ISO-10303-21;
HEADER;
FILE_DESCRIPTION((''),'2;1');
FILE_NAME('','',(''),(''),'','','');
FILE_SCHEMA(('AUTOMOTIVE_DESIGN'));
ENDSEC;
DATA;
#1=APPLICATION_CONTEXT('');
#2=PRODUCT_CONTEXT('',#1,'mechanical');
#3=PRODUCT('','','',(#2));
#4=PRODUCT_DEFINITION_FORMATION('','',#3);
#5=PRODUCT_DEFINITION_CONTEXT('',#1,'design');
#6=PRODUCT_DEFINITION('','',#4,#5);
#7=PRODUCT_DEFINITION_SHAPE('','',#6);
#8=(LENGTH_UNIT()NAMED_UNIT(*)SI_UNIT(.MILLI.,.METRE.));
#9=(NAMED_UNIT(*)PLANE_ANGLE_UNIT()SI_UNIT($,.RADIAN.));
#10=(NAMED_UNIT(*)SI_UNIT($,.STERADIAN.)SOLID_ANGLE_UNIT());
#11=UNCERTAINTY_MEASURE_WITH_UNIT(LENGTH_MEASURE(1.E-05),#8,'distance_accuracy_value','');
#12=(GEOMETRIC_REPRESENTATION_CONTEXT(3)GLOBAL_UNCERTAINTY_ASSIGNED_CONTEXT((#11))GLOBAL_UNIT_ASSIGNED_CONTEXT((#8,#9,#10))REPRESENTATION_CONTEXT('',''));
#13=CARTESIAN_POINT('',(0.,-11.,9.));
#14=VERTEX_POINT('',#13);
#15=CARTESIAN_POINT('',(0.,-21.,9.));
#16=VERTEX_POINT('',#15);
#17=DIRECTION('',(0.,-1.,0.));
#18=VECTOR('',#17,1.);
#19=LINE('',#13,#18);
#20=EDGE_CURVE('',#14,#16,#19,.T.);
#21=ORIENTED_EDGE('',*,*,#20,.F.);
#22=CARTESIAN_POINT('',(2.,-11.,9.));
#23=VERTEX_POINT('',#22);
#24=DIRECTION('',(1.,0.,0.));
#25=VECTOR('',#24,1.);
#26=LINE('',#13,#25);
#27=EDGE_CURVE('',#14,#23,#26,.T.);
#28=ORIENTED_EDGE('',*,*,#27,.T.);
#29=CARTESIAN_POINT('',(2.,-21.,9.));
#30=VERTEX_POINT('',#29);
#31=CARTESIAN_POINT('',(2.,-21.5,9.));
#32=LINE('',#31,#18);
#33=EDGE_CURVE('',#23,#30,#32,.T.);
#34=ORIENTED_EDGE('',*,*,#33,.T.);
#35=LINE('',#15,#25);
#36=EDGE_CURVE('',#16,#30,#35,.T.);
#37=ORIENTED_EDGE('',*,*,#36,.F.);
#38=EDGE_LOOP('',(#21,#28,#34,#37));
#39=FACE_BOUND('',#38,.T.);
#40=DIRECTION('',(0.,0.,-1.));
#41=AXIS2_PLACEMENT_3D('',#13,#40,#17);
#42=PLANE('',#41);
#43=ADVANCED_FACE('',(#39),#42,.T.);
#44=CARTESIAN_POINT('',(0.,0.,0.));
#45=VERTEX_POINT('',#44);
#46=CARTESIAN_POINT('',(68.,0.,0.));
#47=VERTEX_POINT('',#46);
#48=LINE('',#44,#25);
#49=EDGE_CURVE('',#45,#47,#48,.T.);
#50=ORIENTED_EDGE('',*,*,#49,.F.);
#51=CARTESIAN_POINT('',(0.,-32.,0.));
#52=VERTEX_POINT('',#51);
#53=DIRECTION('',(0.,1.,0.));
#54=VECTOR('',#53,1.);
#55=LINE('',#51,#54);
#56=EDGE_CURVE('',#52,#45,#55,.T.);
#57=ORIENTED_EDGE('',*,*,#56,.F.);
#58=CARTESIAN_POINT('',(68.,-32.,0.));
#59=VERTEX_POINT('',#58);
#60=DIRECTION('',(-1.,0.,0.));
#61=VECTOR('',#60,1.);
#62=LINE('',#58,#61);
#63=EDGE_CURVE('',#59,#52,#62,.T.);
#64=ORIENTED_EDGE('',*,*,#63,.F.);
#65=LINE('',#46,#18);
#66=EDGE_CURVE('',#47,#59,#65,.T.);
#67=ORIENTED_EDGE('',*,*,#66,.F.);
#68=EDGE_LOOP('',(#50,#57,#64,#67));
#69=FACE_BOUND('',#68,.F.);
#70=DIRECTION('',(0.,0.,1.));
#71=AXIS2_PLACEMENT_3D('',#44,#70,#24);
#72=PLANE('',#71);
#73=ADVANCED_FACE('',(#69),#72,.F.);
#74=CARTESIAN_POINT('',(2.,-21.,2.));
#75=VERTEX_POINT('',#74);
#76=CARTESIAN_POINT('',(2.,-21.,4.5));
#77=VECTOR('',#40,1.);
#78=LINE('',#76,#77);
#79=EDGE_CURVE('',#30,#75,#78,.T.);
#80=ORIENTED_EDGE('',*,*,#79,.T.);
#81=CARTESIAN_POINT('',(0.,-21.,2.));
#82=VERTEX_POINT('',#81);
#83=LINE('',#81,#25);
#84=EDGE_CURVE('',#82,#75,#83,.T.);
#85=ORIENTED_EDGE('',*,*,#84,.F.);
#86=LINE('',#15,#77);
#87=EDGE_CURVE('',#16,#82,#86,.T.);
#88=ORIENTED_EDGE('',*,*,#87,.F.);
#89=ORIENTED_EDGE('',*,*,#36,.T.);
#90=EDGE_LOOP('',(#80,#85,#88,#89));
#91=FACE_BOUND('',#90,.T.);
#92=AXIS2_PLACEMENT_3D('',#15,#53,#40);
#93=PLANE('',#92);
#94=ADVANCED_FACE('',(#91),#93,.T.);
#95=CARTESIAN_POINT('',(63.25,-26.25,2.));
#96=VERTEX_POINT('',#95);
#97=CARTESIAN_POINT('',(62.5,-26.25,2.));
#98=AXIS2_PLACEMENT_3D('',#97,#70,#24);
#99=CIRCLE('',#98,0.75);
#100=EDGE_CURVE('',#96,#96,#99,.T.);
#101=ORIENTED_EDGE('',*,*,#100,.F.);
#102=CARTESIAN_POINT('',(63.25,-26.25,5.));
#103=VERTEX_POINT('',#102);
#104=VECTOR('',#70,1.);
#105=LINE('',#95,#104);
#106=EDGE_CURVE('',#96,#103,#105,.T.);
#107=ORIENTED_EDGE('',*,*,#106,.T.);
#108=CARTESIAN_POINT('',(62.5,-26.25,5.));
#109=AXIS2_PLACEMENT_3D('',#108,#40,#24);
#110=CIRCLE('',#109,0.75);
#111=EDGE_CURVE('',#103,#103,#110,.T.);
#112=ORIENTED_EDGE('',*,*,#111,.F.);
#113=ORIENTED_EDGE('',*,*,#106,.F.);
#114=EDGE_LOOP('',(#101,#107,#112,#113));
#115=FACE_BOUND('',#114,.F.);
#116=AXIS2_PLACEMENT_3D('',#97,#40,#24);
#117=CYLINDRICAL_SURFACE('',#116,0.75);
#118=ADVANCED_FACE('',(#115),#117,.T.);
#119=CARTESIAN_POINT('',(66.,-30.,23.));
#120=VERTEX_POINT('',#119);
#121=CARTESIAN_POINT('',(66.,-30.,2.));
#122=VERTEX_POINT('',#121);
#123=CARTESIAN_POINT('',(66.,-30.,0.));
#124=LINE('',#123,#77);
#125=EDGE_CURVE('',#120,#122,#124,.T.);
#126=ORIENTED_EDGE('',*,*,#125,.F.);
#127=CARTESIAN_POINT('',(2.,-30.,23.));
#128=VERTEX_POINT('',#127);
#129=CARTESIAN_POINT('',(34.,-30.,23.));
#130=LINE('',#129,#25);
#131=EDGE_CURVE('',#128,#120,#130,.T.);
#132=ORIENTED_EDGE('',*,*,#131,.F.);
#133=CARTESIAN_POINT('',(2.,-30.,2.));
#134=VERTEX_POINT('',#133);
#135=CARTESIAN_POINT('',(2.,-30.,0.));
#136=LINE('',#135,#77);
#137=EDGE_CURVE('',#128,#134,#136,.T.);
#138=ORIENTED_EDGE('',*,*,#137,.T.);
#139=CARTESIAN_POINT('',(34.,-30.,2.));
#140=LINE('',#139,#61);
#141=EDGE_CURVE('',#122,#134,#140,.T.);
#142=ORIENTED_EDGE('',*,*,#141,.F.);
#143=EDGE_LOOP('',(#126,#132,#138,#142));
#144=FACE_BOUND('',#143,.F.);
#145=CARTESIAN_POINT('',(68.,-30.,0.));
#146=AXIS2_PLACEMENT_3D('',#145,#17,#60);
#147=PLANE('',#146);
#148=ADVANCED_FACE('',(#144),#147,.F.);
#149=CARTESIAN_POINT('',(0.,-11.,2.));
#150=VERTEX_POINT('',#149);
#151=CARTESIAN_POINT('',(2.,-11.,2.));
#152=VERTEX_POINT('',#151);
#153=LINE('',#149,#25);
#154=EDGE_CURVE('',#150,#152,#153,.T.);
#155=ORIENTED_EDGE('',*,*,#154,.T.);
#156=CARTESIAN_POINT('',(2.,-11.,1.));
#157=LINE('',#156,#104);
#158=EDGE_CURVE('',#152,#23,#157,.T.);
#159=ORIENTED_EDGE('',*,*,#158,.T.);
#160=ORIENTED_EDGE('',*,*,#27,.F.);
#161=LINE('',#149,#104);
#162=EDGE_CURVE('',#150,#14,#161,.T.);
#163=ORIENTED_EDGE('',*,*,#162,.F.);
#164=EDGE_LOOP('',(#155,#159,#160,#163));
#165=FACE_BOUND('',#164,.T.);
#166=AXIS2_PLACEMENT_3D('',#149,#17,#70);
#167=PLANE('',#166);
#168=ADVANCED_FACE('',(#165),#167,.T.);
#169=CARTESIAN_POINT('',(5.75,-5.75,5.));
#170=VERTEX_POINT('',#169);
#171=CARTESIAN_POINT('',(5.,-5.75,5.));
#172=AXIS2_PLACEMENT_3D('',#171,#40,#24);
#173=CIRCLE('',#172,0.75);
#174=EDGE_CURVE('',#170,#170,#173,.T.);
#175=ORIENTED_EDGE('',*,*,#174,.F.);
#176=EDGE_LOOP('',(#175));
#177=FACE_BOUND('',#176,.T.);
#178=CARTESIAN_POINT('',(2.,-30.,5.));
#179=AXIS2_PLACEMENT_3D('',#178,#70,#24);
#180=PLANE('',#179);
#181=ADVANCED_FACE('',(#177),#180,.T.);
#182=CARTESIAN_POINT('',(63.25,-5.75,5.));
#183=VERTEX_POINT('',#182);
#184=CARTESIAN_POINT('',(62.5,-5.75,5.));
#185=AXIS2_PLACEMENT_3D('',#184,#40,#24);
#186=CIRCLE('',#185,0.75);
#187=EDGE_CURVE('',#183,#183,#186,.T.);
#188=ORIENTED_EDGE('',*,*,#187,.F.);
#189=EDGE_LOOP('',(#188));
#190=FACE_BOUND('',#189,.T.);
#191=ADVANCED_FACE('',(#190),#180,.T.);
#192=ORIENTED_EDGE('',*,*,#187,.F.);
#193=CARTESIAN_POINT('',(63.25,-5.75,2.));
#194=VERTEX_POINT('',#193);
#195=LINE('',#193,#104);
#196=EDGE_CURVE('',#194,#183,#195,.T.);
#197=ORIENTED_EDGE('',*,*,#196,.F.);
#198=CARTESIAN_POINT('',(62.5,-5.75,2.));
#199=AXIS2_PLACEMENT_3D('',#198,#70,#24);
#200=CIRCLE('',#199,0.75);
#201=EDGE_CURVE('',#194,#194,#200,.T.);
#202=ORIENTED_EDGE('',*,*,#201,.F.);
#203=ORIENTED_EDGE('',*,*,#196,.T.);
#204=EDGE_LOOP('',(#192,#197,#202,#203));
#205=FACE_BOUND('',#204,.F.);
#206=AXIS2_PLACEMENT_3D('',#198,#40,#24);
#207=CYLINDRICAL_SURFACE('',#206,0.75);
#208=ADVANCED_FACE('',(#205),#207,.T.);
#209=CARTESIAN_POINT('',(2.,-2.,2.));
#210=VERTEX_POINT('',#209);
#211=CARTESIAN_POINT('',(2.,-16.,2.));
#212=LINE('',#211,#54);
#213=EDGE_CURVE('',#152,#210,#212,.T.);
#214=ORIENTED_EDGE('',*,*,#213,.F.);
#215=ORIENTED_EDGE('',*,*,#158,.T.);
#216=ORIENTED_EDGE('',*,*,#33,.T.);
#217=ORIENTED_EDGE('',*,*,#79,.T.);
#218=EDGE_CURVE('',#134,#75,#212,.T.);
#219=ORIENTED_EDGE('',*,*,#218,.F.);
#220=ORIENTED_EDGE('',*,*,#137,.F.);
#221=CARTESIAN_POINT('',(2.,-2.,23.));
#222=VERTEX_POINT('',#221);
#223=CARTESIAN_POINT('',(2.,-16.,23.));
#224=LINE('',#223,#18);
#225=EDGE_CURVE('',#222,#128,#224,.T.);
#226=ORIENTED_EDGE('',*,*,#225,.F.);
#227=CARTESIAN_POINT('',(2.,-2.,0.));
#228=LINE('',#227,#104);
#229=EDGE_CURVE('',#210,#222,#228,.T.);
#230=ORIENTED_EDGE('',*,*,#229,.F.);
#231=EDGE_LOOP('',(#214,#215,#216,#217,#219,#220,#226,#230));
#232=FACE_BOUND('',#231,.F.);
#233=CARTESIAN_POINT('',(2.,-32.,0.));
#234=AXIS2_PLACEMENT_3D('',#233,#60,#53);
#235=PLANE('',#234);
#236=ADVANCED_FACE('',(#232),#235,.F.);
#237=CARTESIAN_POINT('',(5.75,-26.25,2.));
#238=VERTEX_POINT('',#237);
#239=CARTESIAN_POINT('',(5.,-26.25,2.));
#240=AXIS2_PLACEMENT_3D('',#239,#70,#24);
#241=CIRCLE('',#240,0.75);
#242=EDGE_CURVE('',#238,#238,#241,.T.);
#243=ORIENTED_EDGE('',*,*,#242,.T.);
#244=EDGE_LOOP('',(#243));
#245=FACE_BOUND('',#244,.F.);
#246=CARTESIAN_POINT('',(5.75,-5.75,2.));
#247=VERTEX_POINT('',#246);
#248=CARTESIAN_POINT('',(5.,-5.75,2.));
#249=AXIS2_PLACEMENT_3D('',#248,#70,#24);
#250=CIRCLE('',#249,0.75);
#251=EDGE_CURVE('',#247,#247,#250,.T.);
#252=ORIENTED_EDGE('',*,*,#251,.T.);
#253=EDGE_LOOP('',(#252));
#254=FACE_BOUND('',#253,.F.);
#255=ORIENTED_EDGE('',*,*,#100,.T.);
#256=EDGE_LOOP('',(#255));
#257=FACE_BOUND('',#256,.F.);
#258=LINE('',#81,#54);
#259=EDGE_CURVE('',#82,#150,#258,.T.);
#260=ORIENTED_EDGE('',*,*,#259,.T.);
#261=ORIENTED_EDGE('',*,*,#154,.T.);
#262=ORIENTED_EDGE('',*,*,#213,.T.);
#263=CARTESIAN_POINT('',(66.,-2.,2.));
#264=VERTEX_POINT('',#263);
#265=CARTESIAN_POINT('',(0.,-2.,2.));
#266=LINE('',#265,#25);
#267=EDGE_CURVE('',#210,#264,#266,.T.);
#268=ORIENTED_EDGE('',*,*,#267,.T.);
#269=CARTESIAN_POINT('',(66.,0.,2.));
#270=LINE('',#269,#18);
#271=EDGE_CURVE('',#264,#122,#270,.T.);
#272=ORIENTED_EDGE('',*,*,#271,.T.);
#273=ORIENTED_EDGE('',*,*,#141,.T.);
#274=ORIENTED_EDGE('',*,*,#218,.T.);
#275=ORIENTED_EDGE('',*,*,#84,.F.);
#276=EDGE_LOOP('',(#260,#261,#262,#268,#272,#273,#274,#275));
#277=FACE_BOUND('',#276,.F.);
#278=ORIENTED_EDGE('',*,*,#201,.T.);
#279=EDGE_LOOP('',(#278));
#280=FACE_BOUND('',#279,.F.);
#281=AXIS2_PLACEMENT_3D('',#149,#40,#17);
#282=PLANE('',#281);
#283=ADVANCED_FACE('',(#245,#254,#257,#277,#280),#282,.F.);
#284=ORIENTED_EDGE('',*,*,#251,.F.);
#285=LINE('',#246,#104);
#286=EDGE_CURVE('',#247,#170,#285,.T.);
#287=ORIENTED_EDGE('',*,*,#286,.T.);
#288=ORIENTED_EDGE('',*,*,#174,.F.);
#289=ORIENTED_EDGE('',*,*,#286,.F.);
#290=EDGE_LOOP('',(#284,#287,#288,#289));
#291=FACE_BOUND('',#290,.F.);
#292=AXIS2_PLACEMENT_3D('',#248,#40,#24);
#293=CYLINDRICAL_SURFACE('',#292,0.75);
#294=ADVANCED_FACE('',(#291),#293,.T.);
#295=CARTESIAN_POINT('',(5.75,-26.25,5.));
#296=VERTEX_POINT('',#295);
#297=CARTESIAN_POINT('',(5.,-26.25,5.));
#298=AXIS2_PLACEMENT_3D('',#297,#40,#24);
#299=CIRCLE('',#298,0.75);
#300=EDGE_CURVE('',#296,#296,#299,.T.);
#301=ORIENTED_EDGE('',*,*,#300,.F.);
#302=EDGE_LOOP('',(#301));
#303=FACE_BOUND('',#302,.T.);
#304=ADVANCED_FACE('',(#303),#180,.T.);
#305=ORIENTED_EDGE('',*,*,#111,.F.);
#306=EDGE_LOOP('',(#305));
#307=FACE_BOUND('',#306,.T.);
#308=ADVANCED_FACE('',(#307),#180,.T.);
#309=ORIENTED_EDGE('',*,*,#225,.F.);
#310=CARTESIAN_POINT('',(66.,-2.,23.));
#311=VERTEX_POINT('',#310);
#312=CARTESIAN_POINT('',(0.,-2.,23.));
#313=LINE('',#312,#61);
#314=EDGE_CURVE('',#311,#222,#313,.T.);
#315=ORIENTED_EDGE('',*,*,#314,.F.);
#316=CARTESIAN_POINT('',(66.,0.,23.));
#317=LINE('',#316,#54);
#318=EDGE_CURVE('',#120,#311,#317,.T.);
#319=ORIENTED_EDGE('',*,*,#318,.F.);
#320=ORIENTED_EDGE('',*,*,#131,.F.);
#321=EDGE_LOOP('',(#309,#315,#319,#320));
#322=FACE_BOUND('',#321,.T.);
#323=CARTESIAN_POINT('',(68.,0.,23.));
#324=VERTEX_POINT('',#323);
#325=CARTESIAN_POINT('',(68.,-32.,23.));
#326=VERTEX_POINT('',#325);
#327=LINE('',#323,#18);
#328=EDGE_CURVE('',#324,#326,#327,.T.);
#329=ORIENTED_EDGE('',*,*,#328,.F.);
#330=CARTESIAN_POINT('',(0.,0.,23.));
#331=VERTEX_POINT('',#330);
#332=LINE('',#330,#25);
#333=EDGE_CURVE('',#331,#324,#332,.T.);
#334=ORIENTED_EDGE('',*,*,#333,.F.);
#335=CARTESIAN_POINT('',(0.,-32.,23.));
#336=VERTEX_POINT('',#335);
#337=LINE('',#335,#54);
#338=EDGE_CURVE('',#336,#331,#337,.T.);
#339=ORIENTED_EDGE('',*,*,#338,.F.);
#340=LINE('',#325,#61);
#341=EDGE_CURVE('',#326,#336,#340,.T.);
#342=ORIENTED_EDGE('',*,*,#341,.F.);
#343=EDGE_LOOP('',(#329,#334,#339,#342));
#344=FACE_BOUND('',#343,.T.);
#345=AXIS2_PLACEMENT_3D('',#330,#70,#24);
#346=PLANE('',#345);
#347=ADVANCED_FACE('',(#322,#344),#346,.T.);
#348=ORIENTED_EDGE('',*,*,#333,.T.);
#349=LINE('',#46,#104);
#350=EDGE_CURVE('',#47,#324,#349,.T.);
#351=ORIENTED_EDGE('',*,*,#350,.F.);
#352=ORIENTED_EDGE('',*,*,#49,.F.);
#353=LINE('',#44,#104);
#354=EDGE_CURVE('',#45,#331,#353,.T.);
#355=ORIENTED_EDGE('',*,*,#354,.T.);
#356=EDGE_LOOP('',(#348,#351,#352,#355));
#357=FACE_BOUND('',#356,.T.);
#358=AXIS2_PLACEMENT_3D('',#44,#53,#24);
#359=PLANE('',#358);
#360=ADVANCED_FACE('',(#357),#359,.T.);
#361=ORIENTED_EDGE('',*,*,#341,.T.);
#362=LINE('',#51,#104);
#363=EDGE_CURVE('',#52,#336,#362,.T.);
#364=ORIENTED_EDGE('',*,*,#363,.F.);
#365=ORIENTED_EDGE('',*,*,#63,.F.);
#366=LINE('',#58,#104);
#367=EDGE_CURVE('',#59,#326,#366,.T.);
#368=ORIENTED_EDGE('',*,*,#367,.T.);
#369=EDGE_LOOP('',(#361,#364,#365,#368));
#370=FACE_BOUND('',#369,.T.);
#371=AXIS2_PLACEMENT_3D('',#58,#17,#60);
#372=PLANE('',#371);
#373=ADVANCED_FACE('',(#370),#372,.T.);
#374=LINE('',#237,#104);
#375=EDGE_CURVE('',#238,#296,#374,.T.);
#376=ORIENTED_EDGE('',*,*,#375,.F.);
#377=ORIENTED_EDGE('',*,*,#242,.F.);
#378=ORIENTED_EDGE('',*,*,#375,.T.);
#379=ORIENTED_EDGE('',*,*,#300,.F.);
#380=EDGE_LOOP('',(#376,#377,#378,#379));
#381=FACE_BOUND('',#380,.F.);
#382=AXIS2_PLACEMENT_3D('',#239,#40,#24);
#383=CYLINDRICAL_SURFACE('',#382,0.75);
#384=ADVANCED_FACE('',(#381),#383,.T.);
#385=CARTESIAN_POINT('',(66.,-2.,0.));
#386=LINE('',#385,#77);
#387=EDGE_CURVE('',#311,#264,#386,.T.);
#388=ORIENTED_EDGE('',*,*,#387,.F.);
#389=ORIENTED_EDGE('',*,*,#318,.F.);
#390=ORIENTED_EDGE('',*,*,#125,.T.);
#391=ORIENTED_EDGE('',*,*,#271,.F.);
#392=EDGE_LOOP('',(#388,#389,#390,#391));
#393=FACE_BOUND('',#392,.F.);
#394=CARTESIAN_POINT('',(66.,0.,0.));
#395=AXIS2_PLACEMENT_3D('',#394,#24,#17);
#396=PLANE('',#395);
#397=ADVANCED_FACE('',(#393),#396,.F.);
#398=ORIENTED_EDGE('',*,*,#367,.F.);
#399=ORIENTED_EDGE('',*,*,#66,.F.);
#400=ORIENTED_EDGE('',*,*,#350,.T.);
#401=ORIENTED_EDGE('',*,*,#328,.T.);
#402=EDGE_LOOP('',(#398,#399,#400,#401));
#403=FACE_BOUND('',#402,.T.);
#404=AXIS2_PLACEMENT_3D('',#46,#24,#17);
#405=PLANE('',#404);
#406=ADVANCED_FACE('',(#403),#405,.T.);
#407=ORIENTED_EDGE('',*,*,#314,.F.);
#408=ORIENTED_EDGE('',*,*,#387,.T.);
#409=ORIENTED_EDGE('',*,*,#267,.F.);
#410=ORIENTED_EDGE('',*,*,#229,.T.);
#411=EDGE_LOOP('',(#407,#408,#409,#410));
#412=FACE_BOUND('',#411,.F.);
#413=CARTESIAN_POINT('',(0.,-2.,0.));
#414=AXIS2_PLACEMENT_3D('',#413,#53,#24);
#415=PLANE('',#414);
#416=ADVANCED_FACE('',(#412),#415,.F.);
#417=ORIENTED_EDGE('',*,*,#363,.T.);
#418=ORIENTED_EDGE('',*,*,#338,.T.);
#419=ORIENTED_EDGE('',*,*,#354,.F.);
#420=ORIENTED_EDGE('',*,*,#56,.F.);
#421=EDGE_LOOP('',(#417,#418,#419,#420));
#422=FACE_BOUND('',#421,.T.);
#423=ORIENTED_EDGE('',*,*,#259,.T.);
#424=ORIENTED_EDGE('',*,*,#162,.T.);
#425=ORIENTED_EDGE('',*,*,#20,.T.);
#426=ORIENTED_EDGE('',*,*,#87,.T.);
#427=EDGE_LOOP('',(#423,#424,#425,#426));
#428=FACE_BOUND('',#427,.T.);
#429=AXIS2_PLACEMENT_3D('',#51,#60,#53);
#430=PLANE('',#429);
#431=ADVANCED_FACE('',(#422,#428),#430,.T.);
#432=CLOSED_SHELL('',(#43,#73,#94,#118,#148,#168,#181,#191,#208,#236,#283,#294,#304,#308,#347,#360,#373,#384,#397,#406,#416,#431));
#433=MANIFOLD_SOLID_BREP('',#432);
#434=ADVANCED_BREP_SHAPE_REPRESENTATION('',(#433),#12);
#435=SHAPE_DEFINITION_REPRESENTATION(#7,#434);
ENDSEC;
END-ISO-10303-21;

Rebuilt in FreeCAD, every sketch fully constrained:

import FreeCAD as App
import Part
import Sketcher
Q = App.Units.Quantity


def faces_at(feature, points):
    """Names of the faces that lie closest to the given points."""
    faces = feature.Shape.Faces
    near = lambda p: min(range(len(faces)), key=lambda i: faces[i].distToShape(Part.Vertex(*p))[0])
    return sorted({f"Face{near(p) + 1}" for p in points})


def add_polygon(sketch, points):
    """Adds a closed chain of lines whose ends are joined by coincident constraints."""
    first, n = sketch.GeometryCount, len(points)
    for a, b in zip(points, points[1:] + points[:1]):
        sketch.addGeometry(Part.LineSegment(App.Vector(*a, 0), App.Vector(*b, 0)), False)
    for i in range(n):
        sketch.addConstraint(Sketcher.Constraint("Coincident", first + i, 2, first + (i + 1) % n, 1))

doc = App.newDocument("Part")
body = doc.addObject("PartDesign::Body", "Body")

# Sketch on XY plane
sketch1 = body.newObject("Sketcher::SketchObject", "Sketch")
sketch1.AttachmentSupport = (doc.getObject("XY_Plane"), [""])
sketch1.MapMode = "FlatFace"
add_polygon(sketch1, [(68, 0), (0, 0), (0, -32), (68, -32)])  # lines 0-3
sketch1.addConstraint([
    Sketcher.Constraint("Horizontal", 0),
    Sketcher.Constraint("Vertical", 1),
    Sketcher.Constraint("Horizontal", 2),
    Sketcher.Constraint("Vertical", 3),
    Sketcher.Constraint("Coincident", 0, 2, -1, 1),
    Sketcher.Constraint("DistanceX", 0, 2, 0, 1, Q("68 mm")),
    Sketcher.Constraint("DistanceY", 1, 2, 1, 1, Q("32 mm")),
])
pad1 = body.newObject("PartDesign::Pad", "Pad")
pad1.Profile = sketch1
pad1.Length = 23
doc.recompute()

thickness = body.newObject("PartDesign::Thickness", "Thickness")
thickness.Base = (pad1, faces_at(pad1, [(22.667, -10.667, 23)]))
thickness.Value = 2
thickness.Reversed = True
thickness.Join = "Intersection"

# Sketch on XY plane
sketch2 = body.newObject("Sketcher::SketchObject", "Sketch001")
sketch2.AttachmentSupport = (doc.getObject("XY_Plane"), [""])
sketch2.MapMode = "FlatFace"
sketch2.AttachmentOffset = App.Placement(App.Vector(0, 0, 2), App.Rotation())
sketch2.addGeometry([
    Part.Circle(App.Vector(5, -5.8, 0), App.Vector(0, 0, 1), 0.8),
    Part.Circle(App.Vector(62.5, -5.8, 0), App.Vector(0, 0, 1), 0.8),
    Part.Circle(App.Vector(5, -26.2, 0), App.Vector(0, 0, 1), 0.8),
    Part.Circle(App.Vector(62.5, -26.2, 0), App.Vector(0, 0, 1), 0.8),
], False)
sketch2.addConstraint([
    Sketcher.Constraint("Equal", 0, 1),
    Sketcher.Constraint("Equal", 1, 2),
    Sketcher.Constraint("Equal", 2, 3),
    Sketcher.Constraint("Horizontal", 0, 3, 1, 3),
    Sketcher.Constraint("Horizontal", 2, 3, 3, 3),
    Sketcher.Constraint("Vertical", 0, 3, 2, 3),
    Sketcher.Constraint("Vertical", 1, 3, 3, 3),
    Sketcher.Constraint("Diameter", 0, Q("1.5 mm")),
    Sketcher.Constraint("DistanceX", -1, 1, 0, 3, Q("5 mm")),
    Sketcher.Constraint("DistanceX", 0, 3, 1, 3, Q("57.5 mm")),
    Sketcher.Constraint("DistanceY", 2, 3, 0, 3, Q("20.5 mm")),
    Sketcher.Constraint("DistanceY", 0, 3, -1, 1, Q("5.75 mm")),
])
pad2 = body.newObject("PartDesign::Pad", "Pad001")
pad2.Profile = sketch2
pad2.Length = 3

# Sketch on YZ plane
sketch3 = body.newObject("Sketcher::SketchObject", "Sketch002")
sketch3.AttachmentSupport = (doc.getObject("YZ_Plane"), [""])
sketch3.MapMode = "FlatFace"
add_polygon(sketch3, [(-11, 9), (-11, 2), (-21, 2), (-21, 9)])  # lines 0-3
sketch3.addConstraint([
    Sketcher.Constraint("Vertical", 0),
    Sketcher.Constraint("Horizontal", 1),
    Sketcher.Constraint("Vertical", 2),
    Sketcher.Constraint("Horizontal", 3),
    Sketcher.Constraint("DistanceX", 1, 2, 1, 1, Q("10 mm")),
    Sketcher.Constraint("DistanceY", 0, 2, 0, 1, Q("7 mm")),
    Sketcher.Constraint("DistanceX", 0, 2, -1, 1, Q("11 mm")),
    Sketcher.Constraint("DistanceY", -1, 1, 0, 2, Q("2 mm")),
])
pocket1 = body.newObject("PartDesign::Pocket", "Pocket")
pocket1.Profile = sketch3
pocket1.Length = 10
pocket1.Reversed = True

doc.recompute()
